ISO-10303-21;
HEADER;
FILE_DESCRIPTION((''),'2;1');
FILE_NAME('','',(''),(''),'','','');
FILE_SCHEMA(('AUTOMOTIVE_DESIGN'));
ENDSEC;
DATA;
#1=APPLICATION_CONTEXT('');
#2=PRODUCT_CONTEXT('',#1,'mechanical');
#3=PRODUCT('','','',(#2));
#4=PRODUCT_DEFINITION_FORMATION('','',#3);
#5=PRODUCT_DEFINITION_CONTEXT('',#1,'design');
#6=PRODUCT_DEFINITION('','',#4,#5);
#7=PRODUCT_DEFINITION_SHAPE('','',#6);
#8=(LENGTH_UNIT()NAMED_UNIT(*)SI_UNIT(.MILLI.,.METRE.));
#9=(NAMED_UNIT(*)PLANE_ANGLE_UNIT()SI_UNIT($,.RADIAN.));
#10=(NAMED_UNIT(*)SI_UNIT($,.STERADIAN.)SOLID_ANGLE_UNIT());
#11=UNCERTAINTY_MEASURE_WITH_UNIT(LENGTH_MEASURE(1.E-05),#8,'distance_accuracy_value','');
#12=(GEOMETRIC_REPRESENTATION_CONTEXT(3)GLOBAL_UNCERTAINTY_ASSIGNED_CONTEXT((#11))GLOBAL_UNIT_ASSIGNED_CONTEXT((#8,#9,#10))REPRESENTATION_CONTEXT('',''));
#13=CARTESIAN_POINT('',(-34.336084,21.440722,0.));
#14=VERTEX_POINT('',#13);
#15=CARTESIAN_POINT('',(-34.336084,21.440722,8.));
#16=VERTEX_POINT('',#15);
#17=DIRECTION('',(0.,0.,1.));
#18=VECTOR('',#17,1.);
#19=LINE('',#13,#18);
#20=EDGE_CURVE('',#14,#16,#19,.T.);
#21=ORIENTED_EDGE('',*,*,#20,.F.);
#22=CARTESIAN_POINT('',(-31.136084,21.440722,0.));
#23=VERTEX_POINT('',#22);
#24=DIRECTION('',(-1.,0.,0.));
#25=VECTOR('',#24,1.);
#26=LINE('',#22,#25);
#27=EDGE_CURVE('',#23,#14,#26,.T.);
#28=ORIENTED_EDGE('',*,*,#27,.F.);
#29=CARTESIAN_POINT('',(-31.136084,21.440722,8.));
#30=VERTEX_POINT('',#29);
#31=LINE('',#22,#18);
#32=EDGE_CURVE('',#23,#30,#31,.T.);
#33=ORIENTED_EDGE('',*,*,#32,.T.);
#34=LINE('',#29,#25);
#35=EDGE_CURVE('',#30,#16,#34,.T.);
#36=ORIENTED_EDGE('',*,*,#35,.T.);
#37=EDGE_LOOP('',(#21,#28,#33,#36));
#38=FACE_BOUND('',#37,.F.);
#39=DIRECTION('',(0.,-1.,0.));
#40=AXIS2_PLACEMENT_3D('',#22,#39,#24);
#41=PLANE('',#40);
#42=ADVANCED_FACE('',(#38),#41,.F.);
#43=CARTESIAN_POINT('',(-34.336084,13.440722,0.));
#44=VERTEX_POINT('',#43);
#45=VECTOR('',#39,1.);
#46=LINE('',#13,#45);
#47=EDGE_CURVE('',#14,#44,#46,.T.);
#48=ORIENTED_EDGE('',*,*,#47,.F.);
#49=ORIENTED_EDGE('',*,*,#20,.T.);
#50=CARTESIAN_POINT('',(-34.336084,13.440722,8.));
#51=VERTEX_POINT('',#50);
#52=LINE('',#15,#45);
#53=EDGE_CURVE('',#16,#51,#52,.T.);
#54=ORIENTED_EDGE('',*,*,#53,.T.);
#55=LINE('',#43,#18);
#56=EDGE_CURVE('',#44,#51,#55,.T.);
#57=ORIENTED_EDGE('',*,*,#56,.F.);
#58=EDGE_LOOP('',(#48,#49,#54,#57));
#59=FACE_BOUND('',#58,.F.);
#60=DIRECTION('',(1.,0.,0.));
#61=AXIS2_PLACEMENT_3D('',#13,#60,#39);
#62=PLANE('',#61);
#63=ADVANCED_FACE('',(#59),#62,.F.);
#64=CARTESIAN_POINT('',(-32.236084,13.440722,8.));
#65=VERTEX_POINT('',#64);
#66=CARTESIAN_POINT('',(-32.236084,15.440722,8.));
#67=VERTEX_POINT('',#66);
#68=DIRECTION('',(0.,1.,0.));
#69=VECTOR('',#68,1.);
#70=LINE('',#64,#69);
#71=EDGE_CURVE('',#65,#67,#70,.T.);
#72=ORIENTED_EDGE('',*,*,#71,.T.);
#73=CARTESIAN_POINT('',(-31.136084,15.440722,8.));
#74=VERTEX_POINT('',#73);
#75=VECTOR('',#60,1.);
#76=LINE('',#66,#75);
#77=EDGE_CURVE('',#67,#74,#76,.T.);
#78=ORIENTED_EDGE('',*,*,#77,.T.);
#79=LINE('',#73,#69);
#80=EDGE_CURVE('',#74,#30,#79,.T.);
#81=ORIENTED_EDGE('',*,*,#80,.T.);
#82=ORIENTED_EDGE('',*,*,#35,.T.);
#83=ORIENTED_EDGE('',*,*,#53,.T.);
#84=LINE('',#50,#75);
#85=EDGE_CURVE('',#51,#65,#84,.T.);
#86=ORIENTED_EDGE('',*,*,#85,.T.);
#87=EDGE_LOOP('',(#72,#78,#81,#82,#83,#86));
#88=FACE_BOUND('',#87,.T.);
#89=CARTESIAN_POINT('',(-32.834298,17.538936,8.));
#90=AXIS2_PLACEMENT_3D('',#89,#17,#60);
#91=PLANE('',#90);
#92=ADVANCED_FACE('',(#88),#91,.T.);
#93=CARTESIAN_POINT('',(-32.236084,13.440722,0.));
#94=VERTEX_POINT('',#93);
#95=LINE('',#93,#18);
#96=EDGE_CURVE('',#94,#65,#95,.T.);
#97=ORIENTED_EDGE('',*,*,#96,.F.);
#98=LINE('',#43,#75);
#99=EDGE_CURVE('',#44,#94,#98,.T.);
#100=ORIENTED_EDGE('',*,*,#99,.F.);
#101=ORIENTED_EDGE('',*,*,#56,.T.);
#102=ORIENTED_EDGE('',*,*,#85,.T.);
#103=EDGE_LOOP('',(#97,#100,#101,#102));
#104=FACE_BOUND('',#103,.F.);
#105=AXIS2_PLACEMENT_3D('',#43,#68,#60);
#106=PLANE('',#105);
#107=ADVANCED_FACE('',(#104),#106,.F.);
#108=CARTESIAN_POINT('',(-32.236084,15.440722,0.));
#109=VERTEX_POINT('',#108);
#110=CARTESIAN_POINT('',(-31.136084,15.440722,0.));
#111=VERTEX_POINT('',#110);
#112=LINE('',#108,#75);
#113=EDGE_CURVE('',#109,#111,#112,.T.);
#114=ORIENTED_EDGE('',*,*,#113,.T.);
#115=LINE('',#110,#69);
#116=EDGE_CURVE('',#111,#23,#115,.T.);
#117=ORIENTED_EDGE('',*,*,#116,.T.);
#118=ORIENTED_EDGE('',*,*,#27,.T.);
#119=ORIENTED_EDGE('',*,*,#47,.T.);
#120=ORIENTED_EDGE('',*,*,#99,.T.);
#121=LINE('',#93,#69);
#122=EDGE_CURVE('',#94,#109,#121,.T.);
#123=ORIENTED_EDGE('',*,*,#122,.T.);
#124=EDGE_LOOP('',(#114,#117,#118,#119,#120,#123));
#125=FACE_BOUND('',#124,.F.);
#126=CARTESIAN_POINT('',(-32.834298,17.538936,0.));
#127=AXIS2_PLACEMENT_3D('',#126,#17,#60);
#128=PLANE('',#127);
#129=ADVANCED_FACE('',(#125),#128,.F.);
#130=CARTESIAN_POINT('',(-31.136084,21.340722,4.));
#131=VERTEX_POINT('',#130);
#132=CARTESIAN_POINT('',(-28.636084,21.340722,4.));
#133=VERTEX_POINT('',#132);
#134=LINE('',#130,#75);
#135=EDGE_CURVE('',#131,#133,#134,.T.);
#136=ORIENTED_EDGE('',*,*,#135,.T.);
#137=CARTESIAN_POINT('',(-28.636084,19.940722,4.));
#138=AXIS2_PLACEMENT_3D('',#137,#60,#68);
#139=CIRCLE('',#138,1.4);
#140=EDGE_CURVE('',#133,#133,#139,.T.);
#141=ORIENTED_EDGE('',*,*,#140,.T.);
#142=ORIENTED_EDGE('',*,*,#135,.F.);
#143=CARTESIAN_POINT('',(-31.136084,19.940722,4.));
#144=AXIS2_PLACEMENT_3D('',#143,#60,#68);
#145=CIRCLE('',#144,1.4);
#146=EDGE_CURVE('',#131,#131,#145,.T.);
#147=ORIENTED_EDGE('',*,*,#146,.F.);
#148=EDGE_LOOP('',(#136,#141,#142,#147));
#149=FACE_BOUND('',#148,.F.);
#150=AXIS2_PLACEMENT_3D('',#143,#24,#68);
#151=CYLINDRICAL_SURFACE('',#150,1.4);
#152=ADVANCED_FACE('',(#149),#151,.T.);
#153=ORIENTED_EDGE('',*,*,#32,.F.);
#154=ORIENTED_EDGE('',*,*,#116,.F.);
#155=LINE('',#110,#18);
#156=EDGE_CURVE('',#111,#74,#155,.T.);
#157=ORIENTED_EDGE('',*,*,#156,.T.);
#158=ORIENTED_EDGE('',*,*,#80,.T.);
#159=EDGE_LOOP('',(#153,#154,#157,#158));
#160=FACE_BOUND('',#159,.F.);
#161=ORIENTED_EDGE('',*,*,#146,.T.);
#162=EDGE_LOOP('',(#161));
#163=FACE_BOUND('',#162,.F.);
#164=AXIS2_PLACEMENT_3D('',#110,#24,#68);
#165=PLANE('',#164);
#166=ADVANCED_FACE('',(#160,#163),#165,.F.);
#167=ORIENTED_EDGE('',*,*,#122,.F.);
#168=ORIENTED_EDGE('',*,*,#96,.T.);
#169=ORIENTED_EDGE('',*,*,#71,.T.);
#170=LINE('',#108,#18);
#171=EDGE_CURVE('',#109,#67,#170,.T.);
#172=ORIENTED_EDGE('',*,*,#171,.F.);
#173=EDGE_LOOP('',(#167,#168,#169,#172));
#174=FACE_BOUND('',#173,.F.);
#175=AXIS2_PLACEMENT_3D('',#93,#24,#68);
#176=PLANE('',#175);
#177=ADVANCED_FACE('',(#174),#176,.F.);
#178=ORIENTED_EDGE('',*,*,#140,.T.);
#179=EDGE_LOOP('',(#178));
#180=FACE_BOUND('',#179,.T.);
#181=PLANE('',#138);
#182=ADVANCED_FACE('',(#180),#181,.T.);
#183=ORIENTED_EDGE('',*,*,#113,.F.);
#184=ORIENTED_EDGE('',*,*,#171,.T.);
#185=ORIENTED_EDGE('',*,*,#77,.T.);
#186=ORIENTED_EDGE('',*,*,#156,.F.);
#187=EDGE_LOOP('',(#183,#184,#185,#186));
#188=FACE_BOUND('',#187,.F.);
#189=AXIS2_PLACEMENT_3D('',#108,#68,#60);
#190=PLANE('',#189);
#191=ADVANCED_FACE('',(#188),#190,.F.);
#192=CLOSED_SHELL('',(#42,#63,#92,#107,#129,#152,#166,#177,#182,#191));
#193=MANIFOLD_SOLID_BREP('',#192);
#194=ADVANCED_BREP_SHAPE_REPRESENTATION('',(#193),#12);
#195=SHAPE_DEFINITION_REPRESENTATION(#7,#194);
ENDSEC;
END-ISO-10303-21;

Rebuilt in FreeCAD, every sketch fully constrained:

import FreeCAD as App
import Part
import Sketcher

V = App.Vector

doc = App.newDocument("Part")
body = doc.addObject("PartDesign::Body", "Body")

sketch1 = doc.addObject("Sketcher::SketchObject", "Sketch")
body.addObject(sketch1)
sketch1.AttachmentSupport = (doc.XY_Plane, [""])
sketch1.MapMode = "FlatFace"
sketch1.addGeometry(Part.LineSegment(V(-34.3, 21.4, 0), V(-34.3, 13.4, 0)), False)
sketch1.addGeometry(Part.LineSegment(V(-34.3, 13.4, 0), V(-32.2, 13.4, 0)), False)
sketch1.addGeometry(Part.LineSegment(V(-32.2, 13.4, 0), V(-32.2, 15.4, 0)), False)
sketch1.addGeometry(Part.LineSegment(V(-32.2, 15.4, 0), V(-31.1, 15.4, 0)), False)
sketch1.addGeometry(Part.LineSegment(V(-31.1, 15.4, 0), V(-31.1, 21.4, 0)), False)
sketch1.addGeometry(Part.LineSegment(V(-31.1, 21.4, 0), V(-34.3, 21.4, 0)), False)
sketch1.addConstraint(Sketcher.Constraint("Coincident", 0, 2, 1, 1))
sketch1.addConstraint(Sketcher.Constraint("Coincident", 1, 2, 2, 1))
sketch1.addConstraint(Sketcher.Constraint("Coincident", 2, 2, 3, 1))
sketch1.addConstraint(Sketcher.Constraint("Coincident", 3, 2, 4, 1))
sketch1.addConstraint(Sketcher.Constraint("Coincident", 4, 2, 5, 1))
sketch1.addConstraint(Sketcher.Constraint("Coincident", 5, 2, 0, 1))
sketch1.addConstraint(Sketcher.Constraint("Vertical", 0))
sketch1.addConstraint(Sketcher.Constraint("Horizontal", 1))
sketch1.addConstraint(Sketcher.Constraint("Vertical", 2))
sketch1.addConstraint(Sketcher.Constraint("Horizontal", 3))
sketch1.addConstraint(Sketcher.Constraint("Vertical", 4))
sketch1.addConstraint(Sketcher.Constraint("Horizontal", 5))
sketch1.addConstraint(Sketcher.Constraint("DistanceY", 0, 2, 0, 1, 8.0))
sketch1.addConstraint(Sketcher.Constraint("DistanceY", 2, 1, 2, 2, 2.0))
sketch1.addConstraint(Sketcher.Constraint("DistanceX", 1, 1, 1, 2, 2.1))
sketch1.addConstraint(Sketcher.Constraint("DistanceX", 3, 1, 3, 2, 1.1))
sketch1.addConstraint(Sketcher.Constraint("DistanceY", -1, 1, 0, 2, 13.440722))
sketch1.addConstraint(Sketcher.Constraint("DistanceX", 0, 2, -1, 1, 34.336084))
pad1 = doc.addObject("PartDesign::Pad", "Pad")
body.addObject(pad1)
pad1.Profile = sketch1
pad1.Length = 8

sketch2 = doc.addObject("Sketcher::SketchObject", "Sketch001")
body.addObject(sketch2)
sketch2.AttachmentSupport = (doc.YZ_Plane, [""])
sketch2.MapMode = "FlatFace"
sketch2.AttachmentOffset = App.Placement(V(0, 0, -31.136084), App.Rotation())
sketch2.addGeometry(Part.Circle(V(19.9, 4, 0), V(0, 0, 1), 1.4), False)
sketch2.addConstraint(Sketcher.Constraint("Diameter", 0, 2.8))
sketch2.addConstraint(Sketcher.Constraint("DistanceY", -1, 1, 0, 3, 4.0))
sketch2.addConstraint(Sketcher.Constraint("DistanceX", -1, 1, 0, 3, 19.940722))
pad2 = doc.addObject("PartDesign::Pad", "Pad001")
body.addObject(pad2)
pad2.Profile = sketch2
pad2.Length = 2.5

doc.recompute()
